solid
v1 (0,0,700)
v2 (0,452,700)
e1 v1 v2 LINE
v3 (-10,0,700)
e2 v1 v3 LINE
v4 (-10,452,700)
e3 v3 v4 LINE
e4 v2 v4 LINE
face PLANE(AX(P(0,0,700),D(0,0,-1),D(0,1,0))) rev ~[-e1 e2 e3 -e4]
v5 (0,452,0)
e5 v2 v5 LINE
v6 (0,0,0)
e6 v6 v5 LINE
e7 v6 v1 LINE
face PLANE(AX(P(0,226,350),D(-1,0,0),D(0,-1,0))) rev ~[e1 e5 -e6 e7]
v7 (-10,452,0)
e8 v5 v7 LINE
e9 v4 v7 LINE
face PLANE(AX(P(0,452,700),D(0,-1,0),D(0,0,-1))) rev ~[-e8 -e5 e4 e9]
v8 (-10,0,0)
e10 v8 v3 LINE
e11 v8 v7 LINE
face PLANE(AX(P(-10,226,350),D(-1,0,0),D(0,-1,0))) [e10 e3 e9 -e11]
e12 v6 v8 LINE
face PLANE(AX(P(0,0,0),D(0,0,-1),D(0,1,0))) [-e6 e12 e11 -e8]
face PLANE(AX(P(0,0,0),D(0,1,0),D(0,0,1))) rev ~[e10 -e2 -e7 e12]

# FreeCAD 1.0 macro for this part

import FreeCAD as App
import Part
import Sketcher

V = App.Vector


def add_polygon(sketch, points):
    """Adds a closed chain of lines whose ends are joined by coincident constraints."""
    first, n = sketch.GeometryCount, len(points)
    for a, b in zip(points, points[1:] + points[:1]):
        sketch.addGeometry(Part.LineSegment(App.Vector(*a, 0), App.Vector(*b, 0)), False)
    for i in range(n):
        sketch.addConstraint(Sketcher.Constraint("Coincident", first + i, 2, first + (i + 1) % n, 1))

doc = App.newDocument("Part")
body = doc.addObject("PartDesign::Body", "Body")

sketch1 = body.newObject("Sketcher::SketchObject", "Sketch")
sketch1.AttachmentSupport = (doc.getObject("YZ_Plane"), [""])
sketch1.MapMode = "FlatFace"
add_polygon(sketch1, [(0, 700), (0, 0), (452, 0), (452, 700)])
sketch1.addConstraint([
    Sketcher.Constraint("Vertical", 0),
    Sketcher.Constraint("Horizontal", 1),
    Sketcher.Constraint("Vertical", 2),
    Sketcher.Constraint("Horizontal", 3),
    Sketcher.Constraint("Coincident", 0, 2, -1, 1),
    Sketcher.Constraint("DistanceX", 1, 1, 1, 2, 452.0),
    Sketcher.Constraint("DistanceY", 0, 2, 0, 1, 700.0),
])
pad1 = body.newObject("PartDesign::Pad", "Pad")
pad1.Profile = sketch1
pad1.Length = 10
pad1.Reversed = True

doc.recompute()
